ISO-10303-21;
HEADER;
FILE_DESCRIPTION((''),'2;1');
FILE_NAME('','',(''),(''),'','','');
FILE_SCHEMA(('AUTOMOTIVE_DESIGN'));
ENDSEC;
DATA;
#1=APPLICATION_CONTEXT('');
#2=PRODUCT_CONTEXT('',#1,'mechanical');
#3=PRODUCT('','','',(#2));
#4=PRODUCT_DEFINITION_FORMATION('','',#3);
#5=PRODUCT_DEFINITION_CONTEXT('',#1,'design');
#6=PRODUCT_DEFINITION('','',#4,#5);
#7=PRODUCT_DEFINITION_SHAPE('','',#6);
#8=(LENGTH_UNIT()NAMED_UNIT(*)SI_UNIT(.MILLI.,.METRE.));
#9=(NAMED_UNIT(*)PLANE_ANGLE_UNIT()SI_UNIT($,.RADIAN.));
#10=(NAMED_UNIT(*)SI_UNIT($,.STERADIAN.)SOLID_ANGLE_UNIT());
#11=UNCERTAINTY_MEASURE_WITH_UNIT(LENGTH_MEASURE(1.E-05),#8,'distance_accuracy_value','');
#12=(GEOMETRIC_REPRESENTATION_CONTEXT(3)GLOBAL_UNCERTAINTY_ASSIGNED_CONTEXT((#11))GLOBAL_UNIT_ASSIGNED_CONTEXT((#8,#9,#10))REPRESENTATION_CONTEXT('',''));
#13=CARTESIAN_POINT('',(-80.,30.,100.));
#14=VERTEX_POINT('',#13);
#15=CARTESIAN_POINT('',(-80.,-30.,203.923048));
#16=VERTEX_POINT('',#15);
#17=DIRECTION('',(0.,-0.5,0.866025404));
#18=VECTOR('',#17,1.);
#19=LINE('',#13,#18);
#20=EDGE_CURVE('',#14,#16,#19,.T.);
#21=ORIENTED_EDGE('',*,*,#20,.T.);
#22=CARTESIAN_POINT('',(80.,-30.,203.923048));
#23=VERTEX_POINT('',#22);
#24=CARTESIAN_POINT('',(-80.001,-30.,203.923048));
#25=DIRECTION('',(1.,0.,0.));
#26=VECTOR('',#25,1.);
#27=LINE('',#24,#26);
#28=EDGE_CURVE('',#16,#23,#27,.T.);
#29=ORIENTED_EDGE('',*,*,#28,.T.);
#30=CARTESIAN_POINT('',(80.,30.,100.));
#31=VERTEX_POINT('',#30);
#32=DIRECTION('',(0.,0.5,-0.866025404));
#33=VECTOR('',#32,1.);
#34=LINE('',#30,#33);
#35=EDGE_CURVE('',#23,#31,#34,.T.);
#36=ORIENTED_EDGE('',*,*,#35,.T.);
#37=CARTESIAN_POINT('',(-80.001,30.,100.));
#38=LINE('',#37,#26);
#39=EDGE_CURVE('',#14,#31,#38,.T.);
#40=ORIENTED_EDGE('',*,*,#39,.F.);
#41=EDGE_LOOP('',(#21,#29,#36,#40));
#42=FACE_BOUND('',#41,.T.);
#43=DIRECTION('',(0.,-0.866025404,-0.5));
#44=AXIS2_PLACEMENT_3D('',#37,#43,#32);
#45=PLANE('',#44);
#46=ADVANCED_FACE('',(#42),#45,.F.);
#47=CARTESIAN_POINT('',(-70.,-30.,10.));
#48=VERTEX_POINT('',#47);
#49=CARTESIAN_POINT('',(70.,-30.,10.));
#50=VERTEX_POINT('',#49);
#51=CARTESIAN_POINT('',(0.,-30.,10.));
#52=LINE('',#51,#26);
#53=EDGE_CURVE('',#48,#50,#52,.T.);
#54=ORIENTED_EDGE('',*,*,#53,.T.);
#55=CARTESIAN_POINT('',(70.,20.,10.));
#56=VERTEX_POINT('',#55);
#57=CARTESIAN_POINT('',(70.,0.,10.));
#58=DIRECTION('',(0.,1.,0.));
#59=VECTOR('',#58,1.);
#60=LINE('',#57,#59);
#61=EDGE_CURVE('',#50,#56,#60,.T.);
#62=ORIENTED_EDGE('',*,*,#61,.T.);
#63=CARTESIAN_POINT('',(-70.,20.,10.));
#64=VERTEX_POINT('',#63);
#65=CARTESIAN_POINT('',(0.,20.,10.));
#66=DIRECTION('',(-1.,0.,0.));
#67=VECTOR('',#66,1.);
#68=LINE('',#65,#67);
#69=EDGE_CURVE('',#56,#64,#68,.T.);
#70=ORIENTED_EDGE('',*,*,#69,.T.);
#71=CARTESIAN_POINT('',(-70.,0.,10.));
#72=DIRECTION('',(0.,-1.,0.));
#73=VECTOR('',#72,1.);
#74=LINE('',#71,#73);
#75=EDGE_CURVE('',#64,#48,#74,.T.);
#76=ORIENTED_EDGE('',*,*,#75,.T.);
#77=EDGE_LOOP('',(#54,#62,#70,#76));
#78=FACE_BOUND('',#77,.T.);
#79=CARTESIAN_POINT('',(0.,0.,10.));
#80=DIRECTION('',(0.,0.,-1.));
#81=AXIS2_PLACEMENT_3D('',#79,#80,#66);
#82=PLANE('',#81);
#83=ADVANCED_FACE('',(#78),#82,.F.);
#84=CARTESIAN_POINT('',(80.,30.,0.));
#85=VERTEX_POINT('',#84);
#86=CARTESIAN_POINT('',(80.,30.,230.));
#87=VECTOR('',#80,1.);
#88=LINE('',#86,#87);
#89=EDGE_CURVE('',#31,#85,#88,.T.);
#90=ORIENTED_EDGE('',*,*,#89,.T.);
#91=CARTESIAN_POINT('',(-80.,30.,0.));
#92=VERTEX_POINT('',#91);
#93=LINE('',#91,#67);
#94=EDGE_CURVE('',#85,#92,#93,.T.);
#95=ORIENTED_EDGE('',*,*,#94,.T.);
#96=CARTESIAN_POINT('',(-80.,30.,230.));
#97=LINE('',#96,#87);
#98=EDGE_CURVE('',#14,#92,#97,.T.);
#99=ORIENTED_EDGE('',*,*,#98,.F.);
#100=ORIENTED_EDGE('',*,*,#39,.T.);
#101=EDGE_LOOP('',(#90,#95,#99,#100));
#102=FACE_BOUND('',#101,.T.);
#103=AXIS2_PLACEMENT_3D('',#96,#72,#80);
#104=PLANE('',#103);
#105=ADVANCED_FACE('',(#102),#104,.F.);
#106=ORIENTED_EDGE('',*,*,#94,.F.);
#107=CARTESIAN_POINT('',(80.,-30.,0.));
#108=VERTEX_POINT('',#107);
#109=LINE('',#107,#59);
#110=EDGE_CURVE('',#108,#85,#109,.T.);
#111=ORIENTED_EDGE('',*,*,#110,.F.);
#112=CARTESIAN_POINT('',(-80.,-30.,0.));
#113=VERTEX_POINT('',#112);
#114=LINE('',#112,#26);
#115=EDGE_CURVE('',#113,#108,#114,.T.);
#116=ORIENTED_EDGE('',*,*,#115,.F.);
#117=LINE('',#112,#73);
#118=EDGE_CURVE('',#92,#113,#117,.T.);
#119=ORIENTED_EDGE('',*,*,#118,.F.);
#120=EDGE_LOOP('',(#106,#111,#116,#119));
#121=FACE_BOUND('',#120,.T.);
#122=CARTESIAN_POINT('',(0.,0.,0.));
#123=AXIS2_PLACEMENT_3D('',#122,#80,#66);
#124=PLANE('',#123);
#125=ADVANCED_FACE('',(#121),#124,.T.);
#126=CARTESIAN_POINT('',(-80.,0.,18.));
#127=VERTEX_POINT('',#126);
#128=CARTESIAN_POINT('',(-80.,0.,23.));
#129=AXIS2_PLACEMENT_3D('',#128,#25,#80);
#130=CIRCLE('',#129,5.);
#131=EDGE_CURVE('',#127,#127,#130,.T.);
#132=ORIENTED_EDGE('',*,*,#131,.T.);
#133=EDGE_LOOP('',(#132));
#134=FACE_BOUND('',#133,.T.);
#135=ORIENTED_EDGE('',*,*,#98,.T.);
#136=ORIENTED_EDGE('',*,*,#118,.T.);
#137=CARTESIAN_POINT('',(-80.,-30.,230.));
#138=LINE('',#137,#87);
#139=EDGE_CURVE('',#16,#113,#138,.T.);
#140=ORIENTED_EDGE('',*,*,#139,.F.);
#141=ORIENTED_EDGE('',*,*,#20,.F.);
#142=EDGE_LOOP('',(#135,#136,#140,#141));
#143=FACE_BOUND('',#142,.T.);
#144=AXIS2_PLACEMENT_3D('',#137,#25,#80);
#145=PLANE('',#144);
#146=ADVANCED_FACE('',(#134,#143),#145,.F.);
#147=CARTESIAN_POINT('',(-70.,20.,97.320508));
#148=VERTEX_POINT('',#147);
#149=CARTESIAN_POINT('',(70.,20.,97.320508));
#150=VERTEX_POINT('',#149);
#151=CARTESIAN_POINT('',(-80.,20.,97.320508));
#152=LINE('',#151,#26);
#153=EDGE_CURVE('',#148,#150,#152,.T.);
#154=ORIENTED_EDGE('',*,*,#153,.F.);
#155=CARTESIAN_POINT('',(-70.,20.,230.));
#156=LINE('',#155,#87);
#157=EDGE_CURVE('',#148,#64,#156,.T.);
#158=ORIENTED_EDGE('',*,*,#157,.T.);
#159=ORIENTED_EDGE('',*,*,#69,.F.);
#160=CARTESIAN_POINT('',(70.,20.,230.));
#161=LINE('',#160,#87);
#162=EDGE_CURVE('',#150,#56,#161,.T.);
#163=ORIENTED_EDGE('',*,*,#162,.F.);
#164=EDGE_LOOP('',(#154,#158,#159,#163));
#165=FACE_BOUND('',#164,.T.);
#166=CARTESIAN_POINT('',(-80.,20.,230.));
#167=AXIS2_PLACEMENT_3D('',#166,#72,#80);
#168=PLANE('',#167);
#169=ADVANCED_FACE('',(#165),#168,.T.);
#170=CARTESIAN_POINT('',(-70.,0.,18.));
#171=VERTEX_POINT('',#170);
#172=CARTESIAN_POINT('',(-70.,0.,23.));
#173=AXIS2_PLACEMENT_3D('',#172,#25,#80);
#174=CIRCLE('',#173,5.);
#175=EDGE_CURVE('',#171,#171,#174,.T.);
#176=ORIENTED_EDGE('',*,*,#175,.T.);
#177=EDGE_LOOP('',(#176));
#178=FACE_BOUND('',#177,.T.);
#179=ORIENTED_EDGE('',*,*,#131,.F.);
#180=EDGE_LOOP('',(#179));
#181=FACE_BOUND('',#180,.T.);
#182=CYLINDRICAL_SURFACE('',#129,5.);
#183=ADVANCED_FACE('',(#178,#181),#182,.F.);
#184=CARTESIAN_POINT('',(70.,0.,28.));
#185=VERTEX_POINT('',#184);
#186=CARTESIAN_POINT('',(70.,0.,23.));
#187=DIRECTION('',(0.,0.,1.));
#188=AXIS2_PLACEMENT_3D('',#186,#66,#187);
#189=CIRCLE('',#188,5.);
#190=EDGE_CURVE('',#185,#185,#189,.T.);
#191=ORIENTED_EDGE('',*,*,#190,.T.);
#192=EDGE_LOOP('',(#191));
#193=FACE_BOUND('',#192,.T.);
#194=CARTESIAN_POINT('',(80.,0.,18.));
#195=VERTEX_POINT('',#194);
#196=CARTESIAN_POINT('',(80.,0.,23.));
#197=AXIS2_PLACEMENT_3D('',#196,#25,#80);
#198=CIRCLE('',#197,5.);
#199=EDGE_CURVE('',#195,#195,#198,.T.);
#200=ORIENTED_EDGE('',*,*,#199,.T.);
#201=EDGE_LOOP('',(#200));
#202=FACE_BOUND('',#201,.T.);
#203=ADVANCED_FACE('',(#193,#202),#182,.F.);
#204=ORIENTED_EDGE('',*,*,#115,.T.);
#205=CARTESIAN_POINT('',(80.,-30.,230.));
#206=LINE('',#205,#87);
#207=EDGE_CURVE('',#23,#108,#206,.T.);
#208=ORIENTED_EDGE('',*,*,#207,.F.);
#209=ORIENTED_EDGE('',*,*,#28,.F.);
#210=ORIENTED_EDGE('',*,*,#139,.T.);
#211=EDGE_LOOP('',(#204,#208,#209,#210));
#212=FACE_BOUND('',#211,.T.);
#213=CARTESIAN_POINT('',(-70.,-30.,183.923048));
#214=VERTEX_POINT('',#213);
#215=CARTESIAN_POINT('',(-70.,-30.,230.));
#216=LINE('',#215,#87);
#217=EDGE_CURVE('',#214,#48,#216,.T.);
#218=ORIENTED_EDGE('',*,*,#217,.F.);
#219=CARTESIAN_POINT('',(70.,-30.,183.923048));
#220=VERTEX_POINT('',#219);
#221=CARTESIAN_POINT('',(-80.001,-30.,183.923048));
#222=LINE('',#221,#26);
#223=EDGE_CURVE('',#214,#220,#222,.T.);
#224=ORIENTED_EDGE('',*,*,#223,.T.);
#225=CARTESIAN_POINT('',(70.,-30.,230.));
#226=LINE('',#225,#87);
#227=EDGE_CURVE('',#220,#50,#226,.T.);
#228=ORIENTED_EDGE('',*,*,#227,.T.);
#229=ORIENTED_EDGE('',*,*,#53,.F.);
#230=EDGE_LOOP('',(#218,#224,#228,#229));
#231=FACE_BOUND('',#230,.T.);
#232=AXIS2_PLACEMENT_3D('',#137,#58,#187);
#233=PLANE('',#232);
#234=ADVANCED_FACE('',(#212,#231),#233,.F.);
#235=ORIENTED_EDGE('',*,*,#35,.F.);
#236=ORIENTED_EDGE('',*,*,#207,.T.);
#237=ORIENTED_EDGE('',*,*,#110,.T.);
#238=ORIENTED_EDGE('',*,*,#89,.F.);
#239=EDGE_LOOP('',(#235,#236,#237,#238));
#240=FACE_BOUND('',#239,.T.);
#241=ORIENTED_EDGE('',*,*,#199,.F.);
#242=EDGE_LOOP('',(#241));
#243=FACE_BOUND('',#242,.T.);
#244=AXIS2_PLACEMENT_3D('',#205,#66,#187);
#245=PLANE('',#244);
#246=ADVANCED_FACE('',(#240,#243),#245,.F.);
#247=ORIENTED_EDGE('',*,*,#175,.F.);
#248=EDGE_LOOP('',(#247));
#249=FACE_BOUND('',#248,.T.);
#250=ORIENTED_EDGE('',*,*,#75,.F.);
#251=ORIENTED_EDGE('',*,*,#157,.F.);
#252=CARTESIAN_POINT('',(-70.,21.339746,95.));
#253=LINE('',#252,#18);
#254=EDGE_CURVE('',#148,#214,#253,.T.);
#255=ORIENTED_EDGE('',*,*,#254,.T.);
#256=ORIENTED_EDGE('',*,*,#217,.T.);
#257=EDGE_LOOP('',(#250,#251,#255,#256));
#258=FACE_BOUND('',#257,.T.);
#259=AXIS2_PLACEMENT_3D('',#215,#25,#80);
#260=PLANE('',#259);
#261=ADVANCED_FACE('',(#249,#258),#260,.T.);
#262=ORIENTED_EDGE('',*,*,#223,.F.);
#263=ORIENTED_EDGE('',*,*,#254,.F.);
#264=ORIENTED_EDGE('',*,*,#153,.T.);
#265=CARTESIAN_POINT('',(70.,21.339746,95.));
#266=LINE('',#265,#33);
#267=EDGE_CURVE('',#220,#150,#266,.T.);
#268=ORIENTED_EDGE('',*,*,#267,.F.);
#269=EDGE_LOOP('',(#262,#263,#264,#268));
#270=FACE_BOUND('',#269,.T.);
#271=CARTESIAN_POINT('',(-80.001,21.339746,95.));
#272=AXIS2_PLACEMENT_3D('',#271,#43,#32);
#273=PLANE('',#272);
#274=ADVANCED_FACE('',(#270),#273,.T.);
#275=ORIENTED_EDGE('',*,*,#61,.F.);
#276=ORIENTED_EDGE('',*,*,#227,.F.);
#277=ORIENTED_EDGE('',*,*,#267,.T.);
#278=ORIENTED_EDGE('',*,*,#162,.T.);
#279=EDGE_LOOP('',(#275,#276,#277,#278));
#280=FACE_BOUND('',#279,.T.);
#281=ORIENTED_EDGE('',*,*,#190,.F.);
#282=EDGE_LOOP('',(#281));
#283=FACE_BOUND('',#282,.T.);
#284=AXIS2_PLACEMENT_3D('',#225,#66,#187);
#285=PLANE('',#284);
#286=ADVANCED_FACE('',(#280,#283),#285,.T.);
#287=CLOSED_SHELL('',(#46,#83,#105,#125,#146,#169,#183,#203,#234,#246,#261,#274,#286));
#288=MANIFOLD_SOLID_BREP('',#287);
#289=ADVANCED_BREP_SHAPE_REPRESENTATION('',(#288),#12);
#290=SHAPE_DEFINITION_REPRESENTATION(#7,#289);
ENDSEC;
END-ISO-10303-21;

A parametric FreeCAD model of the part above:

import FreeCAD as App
import Part
import Sketcher
Q = App.Units.Quantity


def faces_at(feature, points):
    """Names of the faces that lie closest to the given points."""
    faces = feature.Shape.Faces
    near = lambda p: min(range(len(faces)), key=lambda i: faces[i].distToShape(Part.Vertex(*p))[0])
    return sorted({f"Face{near(p) + 1}" for p in points})

doc = App.newDocument("Part")
body = doc.addObject("PartDesign::Body", "Body")

# Sketch on XY plane
sketch1 = body.newObject("Sketcher::SketchObject", "Sketch")
sketch1.AttachmentSupport = (doc.getObject("XY_Plane"), [""])
sketch1.MapMode = "FlatFace"
sketch1.addGeometry([
    Part.LineSegment(App.Vector(-80, 30, 0), App.Vector(-80, -30, 0)),
    Part.LineSegment(App.Vector(-80, -30, 0), App.Vector(80, -30, 0)),
    Part.LineSegment(App.Vector(80, -30, 0), App.Vector(80, 30, 0)),
    Part.LineSegment(App.Vector(80, 30, 0), App.Vector(-80, 30, 0)),
], False)
sketch1.addConstraint([
    Sketcher.Constraint("Coincident", 0, 2, 1, 1),
    Sketcher.Constraint("Coincident", 1, 2, 2, 1),
    Sketcher.Constraint("Coincident", 2, 2, 3, 1),
    Sketcher.Constraint("Coincident", 3, 2, 0, 1),
    Sketcher.Constraint("Vertical", 0),
    Sketcher.Constraint("Horizontal", 1),
    Sketcher.Constraint("Vertical", 2),
    Sketcher.Constraint("Horizontal", 3),
    Sketcher.Constraint("Symmetric", 0, 2, 2, 2, -1, 1),
    Sketcher.Constraint("DistanceX", 1, 1, 1, 2, 160.0),
    Sketcher.Constraint("DistanceY", 0, 2, 0, 1, 60.0),
])
pad1 = body.newObject("PartDesign::Pad", "Pad")
pad1.Profile = sketch1
pad1.Length = 230

# Sketch on YZ plane
sketch2 = body.newObject("Sketcher::SketchObject", "Sketch001")
sketch2.AttachmentSupport = (doc.getObject("YZ_Plane"), [""])
sketch2.MapMode = "FlatFace"
sketch2.AttachmentOffset = App.Placement(App.Vector(0, 0, 80), App.Rotation())
sketch2.addGeometry([
    Part.LineSegment(App.Vector(-30, 204, 0), App.Vector(30, 100, 0)),
    Part.LineSegment(App.Vector(30, 100, 0), App.Vector(30, 230, 0)),
    Part.LineSegment(App.Vector(30, 230, 0), App.Vector(-30, 230, 0)),
    Part.LineSegment(App.Vector(-30, 230, 0), App.Vector(-30, 204, 0)),
], False)
sketch2.addConstraint([
    Sketcher.Constraint("Coincident", 0, 2, 1, 1),
    Sketcher.Constraint("Coincident", 1, 2, 2, 1),
    Sketcher.Constraint("Coincident", 2, 2, 3, 1),
    Sketcher.Constraint("Coincident", 3, 2, 0, 1),
    Sketcher.Constraint("Vertical", 1),
    Sketcher.Constraint("Horizontal", 2),
    Sketcher.Constraint("Vertical", 3),
    Sketcher.Constraint("DistanceX", 2, 2, 2, 1, 60.0),
    Sketcher.Constraint("DistanceY", 1, 1, 1, 2, 130.0),
    Sketcher.Constraint("Angle", 0, Q("-60 deg")),
    Sketcher.Constraint("DistanceX", -1, 1, 0, 2, 30.0),
    Sketcher.Constraint("DistanceY", -1, 1, 0, 2, 100.0),
])
pocket1 = body.newObject("PartDesign::Pocket", "Pocket")
pocket1.Profile = sketch2
pocket1.Type = "UpToFirst"
doc.recompute()

thickness = body.newObject("PartDesign::Thickness", "Thickness")
thickness.Base = (pocket1, faces_at(pocket1, [(0, -30, 101.962)]))
thickness.Value = 10
thickness.Reversed = True
thickness.Join = "Intersection"

# Sketch on YZ plane
sketch3 = body.newObject("Sketcher::SketchObject", "Sketch002")
sketch3.AttachmentSupport = (doc.getObject("YZ_Plane"), [""])
sketch3.MapMode = "FlatFace"
sketch3.AttachmentOffset = App.Placement(App.Vector(0, 0, 80), App.Rotation())
sketch3.addGeometry(Part.Circle(App.Vector(0, 23, 0), App.Vector(0, 0, 1), 5), False)
sketch3.addConstraint([
    Sketcher.Constraint("PointOnObject", 0, 3, -2),
    Sketcher.Constraint("Diameter", 0, 10.0),
    Sketcher.Constraint("DistanceY", -1, 1, 0, 3, 23.0),
])
pocket2 = body.newObject("PartDesign::Pocket", "Pocket001")
pocket2.Profile = sketch3
pocket2.Type = "ThroughAll"

doc.recompute()
